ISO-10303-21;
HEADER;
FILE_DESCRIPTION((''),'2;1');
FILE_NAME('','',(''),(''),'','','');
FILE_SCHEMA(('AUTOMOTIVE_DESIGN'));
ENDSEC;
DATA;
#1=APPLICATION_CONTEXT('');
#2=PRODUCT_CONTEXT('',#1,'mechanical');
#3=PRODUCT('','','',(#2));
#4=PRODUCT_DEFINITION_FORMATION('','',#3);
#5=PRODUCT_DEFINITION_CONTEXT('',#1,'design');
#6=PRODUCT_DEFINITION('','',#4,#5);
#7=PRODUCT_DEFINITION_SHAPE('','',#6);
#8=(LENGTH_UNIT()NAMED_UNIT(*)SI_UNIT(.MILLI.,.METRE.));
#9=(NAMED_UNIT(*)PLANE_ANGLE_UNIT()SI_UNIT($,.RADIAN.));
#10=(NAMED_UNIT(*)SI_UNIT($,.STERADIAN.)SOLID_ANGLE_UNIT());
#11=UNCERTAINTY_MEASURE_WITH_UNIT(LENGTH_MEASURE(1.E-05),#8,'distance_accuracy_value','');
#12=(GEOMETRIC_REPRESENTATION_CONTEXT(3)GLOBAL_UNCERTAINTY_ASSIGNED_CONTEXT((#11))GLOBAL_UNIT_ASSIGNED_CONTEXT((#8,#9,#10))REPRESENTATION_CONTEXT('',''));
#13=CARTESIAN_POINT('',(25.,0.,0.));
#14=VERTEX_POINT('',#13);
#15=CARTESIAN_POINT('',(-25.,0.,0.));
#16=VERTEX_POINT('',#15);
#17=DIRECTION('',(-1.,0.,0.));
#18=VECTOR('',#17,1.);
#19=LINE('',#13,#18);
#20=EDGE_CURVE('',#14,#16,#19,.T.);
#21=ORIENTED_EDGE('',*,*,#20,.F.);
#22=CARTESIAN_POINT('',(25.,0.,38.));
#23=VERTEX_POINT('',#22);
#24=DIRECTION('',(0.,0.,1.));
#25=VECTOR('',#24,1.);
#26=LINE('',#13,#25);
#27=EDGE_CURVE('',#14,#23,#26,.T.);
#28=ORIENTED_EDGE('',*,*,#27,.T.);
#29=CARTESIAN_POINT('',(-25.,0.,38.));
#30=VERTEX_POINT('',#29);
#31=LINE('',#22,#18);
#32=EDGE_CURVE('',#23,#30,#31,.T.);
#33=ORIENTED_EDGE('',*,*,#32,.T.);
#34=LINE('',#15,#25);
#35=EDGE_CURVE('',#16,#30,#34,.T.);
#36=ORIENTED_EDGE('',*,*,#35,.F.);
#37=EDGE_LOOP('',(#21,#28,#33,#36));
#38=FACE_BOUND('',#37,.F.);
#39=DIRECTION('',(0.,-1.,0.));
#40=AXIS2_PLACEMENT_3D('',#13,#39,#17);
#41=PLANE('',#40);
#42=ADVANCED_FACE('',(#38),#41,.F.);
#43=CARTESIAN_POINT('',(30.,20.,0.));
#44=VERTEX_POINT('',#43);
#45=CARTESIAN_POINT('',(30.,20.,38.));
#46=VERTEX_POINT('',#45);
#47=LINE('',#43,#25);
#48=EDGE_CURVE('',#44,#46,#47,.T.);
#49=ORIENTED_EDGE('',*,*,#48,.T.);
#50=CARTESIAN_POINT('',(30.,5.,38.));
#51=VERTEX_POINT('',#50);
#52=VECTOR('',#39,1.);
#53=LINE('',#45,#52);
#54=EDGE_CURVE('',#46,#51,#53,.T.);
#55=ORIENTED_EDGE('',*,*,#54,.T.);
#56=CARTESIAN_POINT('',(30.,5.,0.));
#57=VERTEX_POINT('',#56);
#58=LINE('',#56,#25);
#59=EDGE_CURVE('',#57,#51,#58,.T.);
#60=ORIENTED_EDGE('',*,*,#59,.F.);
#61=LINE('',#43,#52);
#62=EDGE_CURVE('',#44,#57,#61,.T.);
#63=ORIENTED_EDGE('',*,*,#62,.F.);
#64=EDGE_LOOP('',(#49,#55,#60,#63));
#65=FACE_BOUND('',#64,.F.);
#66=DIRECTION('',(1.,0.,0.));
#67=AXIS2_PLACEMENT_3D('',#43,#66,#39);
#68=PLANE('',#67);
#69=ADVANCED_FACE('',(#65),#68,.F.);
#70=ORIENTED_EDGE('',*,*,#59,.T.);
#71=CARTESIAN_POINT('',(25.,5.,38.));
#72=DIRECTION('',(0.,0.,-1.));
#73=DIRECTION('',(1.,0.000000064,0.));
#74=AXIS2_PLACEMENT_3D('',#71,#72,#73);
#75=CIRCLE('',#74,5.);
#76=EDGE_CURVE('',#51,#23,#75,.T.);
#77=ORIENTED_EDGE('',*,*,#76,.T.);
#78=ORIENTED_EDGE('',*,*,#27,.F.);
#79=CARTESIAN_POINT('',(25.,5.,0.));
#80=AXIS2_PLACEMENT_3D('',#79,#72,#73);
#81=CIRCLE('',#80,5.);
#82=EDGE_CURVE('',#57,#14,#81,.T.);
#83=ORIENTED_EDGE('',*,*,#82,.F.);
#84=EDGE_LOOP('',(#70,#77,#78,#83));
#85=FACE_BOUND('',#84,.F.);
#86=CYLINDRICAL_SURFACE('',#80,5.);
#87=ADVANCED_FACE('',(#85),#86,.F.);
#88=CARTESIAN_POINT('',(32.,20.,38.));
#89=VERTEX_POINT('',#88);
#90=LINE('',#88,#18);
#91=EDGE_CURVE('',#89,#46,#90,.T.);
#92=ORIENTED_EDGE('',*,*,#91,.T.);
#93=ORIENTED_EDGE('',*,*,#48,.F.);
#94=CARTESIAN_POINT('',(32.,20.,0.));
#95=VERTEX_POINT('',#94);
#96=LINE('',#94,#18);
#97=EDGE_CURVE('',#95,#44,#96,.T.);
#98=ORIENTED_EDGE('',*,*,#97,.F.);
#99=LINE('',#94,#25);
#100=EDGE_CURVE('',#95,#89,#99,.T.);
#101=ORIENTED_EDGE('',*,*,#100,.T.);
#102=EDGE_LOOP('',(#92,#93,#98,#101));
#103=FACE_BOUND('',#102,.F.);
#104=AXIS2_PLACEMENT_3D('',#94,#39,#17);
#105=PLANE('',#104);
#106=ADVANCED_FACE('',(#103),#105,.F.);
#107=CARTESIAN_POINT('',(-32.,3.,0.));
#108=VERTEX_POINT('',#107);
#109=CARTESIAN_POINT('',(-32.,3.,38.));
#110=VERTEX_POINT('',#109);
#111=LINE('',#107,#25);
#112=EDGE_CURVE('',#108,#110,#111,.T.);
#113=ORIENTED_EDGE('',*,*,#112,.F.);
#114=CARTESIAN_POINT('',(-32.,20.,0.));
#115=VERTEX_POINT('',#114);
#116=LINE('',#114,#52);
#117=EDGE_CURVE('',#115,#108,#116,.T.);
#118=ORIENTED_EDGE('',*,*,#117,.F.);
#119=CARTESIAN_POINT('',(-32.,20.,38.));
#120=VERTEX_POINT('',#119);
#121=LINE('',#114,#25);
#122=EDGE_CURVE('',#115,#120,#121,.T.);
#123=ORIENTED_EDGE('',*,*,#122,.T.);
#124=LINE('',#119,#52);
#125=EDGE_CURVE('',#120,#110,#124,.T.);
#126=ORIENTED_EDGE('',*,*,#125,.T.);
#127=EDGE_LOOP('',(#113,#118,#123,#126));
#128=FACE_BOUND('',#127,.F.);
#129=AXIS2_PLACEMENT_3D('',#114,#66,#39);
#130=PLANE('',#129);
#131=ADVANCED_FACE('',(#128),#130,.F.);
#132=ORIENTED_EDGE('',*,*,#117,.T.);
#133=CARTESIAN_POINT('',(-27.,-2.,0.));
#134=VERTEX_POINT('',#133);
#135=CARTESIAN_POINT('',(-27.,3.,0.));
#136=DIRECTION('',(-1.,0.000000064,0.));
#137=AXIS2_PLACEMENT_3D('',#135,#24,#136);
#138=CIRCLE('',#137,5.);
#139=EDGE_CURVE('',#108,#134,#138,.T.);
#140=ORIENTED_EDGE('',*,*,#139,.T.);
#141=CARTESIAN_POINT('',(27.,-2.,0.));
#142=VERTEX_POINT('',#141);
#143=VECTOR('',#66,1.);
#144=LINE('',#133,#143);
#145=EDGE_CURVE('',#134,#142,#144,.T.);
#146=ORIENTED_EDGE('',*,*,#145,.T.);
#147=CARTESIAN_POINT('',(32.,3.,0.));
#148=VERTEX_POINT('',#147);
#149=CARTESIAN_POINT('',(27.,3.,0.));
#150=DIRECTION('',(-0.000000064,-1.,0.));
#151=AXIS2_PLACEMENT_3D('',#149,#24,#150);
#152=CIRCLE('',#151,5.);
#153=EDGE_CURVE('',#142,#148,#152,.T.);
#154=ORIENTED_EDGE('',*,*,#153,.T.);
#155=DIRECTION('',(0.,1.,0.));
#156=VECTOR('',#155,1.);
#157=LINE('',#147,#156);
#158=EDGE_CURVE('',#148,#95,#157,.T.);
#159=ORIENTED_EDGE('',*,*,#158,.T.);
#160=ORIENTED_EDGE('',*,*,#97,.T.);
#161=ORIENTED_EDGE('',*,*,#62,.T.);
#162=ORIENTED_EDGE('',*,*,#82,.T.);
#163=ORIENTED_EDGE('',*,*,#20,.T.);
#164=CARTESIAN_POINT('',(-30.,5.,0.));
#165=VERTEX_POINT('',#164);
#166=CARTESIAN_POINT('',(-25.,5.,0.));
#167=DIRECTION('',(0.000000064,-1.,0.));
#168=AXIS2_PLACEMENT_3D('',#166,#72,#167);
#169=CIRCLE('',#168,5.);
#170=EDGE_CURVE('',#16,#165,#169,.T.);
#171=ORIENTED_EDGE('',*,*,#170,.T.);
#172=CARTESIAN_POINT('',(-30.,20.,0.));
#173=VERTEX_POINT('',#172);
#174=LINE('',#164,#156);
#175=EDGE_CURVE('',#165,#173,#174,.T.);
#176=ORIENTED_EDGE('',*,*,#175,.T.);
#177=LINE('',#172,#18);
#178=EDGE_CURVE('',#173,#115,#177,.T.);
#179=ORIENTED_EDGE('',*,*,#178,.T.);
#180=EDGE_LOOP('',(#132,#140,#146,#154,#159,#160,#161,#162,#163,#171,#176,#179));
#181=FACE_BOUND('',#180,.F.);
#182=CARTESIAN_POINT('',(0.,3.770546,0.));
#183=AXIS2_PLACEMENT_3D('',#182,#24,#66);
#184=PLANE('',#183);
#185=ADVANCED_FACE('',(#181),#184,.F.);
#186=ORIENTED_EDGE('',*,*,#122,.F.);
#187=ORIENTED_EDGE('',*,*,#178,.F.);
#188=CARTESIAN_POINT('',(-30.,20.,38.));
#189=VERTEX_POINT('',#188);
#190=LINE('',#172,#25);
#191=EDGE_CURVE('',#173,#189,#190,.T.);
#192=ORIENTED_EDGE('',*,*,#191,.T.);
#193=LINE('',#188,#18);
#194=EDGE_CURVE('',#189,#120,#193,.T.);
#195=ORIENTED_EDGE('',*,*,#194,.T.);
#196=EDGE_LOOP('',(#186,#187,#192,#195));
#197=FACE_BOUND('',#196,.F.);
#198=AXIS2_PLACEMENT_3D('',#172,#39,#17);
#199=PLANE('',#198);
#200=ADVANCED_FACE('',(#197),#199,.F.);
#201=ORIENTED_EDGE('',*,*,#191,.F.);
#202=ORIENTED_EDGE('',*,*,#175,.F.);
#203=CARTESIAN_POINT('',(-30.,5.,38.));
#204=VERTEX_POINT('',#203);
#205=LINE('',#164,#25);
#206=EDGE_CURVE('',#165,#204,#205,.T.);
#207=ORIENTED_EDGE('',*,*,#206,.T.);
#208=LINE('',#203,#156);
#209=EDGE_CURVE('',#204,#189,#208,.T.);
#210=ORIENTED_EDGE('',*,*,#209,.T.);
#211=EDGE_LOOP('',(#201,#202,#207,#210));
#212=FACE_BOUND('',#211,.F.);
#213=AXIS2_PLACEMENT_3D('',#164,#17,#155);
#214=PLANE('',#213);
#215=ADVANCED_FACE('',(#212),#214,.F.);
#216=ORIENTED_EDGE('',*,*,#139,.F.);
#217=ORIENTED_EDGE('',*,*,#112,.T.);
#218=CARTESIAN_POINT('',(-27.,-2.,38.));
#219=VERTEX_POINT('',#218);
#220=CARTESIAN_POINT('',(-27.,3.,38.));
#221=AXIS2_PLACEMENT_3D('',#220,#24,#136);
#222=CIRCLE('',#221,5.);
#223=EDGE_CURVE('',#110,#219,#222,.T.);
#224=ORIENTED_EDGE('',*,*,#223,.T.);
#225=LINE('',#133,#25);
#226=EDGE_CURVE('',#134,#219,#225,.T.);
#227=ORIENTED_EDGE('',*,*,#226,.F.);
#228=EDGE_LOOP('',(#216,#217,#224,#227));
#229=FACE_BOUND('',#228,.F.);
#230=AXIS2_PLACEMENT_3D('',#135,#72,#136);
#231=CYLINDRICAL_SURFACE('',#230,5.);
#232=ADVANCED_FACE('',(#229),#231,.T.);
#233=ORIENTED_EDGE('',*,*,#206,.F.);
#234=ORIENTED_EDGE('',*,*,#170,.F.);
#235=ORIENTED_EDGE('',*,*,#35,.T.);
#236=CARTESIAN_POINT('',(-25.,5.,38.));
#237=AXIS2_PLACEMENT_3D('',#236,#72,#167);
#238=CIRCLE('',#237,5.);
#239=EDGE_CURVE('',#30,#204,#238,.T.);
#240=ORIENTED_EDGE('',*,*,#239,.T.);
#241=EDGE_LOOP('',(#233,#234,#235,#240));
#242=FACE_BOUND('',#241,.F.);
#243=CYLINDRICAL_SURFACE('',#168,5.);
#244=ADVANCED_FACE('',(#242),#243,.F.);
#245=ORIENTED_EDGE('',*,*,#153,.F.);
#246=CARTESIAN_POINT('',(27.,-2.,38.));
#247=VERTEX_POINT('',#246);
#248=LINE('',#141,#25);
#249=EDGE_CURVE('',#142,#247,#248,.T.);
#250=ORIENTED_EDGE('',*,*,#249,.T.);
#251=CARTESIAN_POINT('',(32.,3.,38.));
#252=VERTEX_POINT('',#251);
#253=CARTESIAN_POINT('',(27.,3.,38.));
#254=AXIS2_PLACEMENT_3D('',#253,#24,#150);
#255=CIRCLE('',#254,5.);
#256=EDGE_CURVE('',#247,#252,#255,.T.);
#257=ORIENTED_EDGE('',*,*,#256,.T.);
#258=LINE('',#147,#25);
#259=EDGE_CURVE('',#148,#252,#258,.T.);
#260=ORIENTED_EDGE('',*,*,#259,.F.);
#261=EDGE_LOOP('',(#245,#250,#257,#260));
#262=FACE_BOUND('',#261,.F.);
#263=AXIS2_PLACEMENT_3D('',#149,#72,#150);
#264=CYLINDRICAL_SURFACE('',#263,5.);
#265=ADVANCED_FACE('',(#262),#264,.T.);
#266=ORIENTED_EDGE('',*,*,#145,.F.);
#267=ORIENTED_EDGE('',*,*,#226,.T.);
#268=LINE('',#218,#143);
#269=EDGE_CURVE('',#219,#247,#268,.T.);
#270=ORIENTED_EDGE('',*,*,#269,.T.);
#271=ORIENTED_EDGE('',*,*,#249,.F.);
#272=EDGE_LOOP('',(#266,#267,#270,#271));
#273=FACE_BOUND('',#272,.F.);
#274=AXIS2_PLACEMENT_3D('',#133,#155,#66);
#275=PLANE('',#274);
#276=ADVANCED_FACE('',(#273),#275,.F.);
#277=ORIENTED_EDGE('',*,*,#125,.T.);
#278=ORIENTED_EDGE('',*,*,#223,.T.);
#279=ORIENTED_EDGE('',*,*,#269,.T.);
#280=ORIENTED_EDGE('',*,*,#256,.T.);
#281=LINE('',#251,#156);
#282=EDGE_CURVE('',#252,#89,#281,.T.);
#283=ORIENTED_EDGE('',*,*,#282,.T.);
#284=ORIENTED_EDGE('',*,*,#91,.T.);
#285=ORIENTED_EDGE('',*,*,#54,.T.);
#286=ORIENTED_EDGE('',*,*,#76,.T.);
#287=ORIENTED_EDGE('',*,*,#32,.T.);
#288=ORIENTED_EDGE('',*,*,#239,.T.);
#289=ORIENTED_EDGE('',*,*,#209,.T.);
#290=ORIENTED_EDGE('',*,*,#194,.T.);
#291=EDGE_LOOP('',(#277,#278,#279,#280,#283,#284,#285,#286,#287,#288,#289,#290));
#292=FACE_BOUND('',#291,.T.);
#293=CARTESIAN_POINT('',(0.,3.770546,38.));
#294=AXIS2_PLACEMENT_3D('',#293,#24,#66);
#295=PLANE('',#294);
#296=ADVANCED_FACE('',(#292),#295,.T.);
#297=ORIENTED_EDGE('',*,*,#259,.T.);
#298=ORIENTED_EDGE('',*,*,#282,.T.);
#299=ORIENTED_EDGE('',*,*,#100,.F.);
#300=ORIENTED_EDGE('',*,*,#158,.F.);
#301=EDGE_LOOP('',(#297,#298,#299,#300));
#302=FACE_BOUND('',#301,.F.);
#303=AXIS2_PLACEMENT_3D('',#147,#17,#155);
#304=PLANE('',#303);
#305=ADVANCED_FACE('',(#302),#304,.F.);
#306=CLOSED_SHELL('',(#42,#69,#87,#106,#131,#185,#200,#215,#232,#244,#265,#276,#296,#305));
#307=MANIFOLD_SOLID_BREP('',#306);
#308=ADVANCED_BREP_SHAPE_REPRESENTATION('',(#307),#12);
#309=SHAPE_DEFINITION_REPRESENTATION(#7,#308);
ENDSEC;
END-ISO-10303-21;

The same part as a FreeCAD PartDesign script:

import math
import FreeCAD as App
import Part
import Sketcher
Q = App.Units.Quantity

doc = App.newDocument("Part")
body = doc.addObject("PartDesign::Body", "Body")

sketch1 = body.newObject("Sketcher::SketchObject", "Sketch")
sketch1.AttachmentSupport = (doc.getObject("XY_Plane"), [""])
sketch1.MapMode = "FlatFace"
sketch1.addGeometry(Part.LineSegment(App.Vector(25, 0, 0), App.Vector(-25, 0, 0)), False)
sketch1.addGeometry(Part.ArcOfCircle(Part.Circle(App.Vector(-25, 5, 0), App.Vector(0, 0, 1), 5), math.radians(180), math.radians(270)), False)
sketch1.addGeometry(Part.LineSegment(App.Vector(-30, 5, 0), App.Vector(-30, 20, 0)), False)
sketch1.addGeometry(Part.LineSegment(App.Vector(-30, 20, 0), App.Vector(-32, 20, 0)), False)
sketch1.addGeometry(Part.LineSegment(App.Vector(-32, 20, 0), App.Vector(-32, 3, 0)), False)
sketch1.addGeometry(Part.ArcOfCircle(Part.Circle(App.Vector(-27, 3, 0), App.Vector(0, 0, 1), 5), math.radians(180), math.radians(270)), False)
sketch1.addGeometry(Part.LineSegment(App.Vector(-27, -2, 0), App.Vector(27, -2, 0)), False)
sketch1.addGeometry(Part.ArcOfCircle(Part.Circle(App.Vector(27, 3, 0), App.Vector(0, 0, 1), 5), math.radians(-90), math.radians(0)), False)
sketch1.addGeometry(Part.LineSegment(App.Vector(32, 3, 0), App.Vector(32, 20, 0)), False)
sketch1.addGeometry(Part.LineSegment(App.Vector(32, 20, 0), App.Vector(30, 20, 0)), False)
sketch1.addGeometry(Part.LineSegment(App.Vector(30, 20, 0), App.Vector(30, 5, 0)), False)
sketch1.addGeometry(Part.ArcOfCircle(Part.Circle(App.Vector(25, 5, 0), App.Vector(0, 0, 1), 5), math.radians(-90), math.radians(0)), False)
sketch1.addConstraint(Sketcher.Constraint("Tangent", 0, 2, 1, 2))
sketch1.addConstraint(Sketcher.Constraint("Tangent", 1, 1, 2, 1))
sketch1.addConstraint(Sketcher.Constraint("Coincident", 2, 2, 3, 1))
sketch1.addConstraint(Sketcher.Constraint("Coincident", 3, 2, 4, 1))
sketch1.addConstraint(Sketcher.Constraint("Tangent", 4, 2, 5, 1))
sketch1.addConstraint(Sketcher.Constraint("Tangent", 5, 2, 6, 1))
sketch1.addConstraint(Sketcher.Constraint("Tangent", 6, 2, 7, 1))
sketch1.addConstraint(Sketcher.Constraint("Tangent", 7, 2, 8, 1))
sketch1.addConstraint(Sketcher.Constraint("Coincident", 8, 2, 9, 1))
sketch1.addConstraint(Sketcher.Constraint("Coincident", 9, 2, 10, 1))
sketch1.addConstraint(Sketcher.Constraint("Tangent", 10, 2, 11, 2))
sketch1.addConstraint(Sketcher.Constraint("Tangent", 11, 1, 0, 1))
sketch1.addConstraint(Sketcher.Constraint("Horizontal", 0))
sketch1.addConstraint(Sketcher.Constraint("Vertical", 2))
sketch1.addConstraint(Sketcher.Constraint("Horizontal", 3))
sketch1.addConstraint(Sketcher.Constraint("Vertical", 4))
sketch1.addConstraint(Sketcher.Constraint("Horizontal", 6))
sketch1.addConstraint(Sketcher.Constraint("Vertical", 8))
sketch1.addConstraint(Sketcher.Constraint("Horizontal", 9))
sketch1.addConstraint(Sketcher.Constraint("Vertical", 10))
sketch1.addConstraint(Sketcher.Constraint("Equal", 1, 5))
sketch1.addConstraint(Sketcher.Constraint("Equal", 5, 7))
sketch1.addConstraint(Sketcher.Constraint("Equal", 7, 11))
sketch1.addConstraint(Sketcher.Constraint("Symmetric", 0, 2, 11, 1, -1, 1))
sketch1.addConstraint(Sketcher.Constraint("Symmetric", 3, 2, 8, 2, -2))
sketch1.addConstraint(Sketcher.Constraint("Radius", 1, Q("5 mm")))
sketch1.addConstraint(Sketcher.Constraint("DistanceX", 0, 2, 0, 1, Q("50 mm")))
sketch1.addConstraint(Sketcher.Constraint("DistanceX", 3, 2, 3, 1, Q("2 mm")))
sketch1.addConstraint(Sketcher.Constraint("DistanceY", 2, 1, 2, 2, Q("15 mm")))
sketch1.addConstraint(Sketcher.Constraint("DistanceY", 4, 2, 4, 1, Q("17 mm")))
pad1 = body.newObject("PartDesign::Pad", "Pad")
pad1.Profile = sketch1
pad1.Length = 38

doc.recompute()
